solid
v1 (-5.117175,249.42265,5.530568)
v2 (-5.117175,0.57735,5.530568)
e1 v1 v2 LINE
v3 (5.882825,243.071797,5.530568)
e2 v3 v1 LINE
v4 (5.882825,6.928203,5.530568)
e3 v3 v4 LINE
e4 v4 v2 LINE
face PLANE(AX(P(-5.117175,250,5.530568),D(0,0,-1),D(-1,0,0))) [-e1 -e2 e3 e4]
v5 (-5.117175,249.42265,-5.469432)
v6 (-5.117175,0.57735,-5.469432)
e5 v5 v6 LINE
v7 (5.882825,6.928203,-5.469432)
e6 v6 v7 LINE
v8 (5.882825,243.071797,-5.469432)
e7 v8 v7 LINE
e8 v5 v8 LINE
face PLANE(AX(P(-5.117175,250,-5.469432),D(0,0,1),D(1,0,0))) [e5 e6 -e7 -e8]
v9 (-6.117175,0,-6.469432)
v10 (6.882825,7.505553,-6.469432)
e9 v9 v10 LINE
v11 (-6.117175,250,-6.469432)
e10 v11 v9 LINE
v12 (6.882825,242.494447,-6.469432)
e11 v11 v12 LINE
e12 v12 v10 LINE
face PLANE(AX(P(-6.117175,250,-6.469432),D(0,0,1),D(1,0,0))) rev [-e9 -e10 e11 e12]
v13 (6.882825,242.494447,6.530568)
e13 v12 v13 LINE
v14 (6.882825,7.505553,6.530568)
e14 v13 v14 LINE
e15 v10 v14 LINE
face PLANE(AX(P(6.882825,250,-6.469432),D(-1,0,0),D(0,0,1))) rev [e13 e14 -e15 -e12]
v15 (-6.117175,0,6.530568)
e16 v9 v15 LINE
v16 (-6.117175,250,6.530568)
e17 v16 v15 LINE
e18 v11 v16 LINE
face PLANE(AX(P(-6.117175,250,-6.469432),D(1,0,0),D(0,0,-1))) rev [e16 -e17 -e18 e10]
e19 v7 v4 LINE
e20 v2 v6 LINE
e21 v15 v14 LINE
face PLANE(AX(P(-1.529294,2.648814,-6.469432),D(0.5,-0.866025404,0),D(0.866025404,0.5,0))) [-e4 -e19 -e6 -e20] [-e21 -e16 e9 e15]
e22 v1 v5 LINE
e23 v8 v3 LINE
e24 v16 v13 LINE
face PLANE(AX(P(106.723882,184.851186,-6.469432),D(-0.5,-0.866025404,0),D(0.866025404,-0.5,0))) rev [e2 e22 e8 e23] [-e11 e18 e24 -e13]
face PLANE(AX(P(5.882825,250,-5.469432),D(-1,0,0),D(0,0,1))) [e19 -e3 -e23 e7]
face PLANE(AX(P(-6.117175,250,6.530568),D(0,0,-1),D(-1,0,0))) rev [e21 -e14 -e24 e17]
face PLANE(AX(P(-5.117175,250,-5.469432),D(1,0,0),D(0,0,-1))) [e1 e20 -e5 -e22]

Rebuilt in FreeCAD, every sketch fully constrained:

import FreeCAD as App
import Part
import Sketcher
from FreeCAD import Vector
Q = App.Units.Quantity


def add_polygon(sketch, points):
    """Adds a closed chain of lines whose ends are joined by coincident constraints."""
    first, n = sketch.GeometryCount, len(points)
    for a, b in zip(points, points[1:] + points[:1]):
        sketch.addGeometry(Part.LineSegment(App.Vector(*a, 0), App.Vector(*b, 0)), False)
    for i in range(n):
        sketch.addConstraint(Sketcher.Constraint("Coincident", first + i, 2, first + (i + 1) % n, 1))

doc = App.newDocument("Part")
params = doc.addObject("Spreadsheet::Sheet", "Params")
for row, (alias, value) in enumerate([
    ("sketch1_width", "13 mm"),
    ("sketch1_width2", "11 mm"),
    ("pad1_length", "250 mm"),
    ("sketch2_width", "13 mm"),
], start=1):
    params.set(f"A{row}", alias)
    params.set(f"B{row}", "=" + value)
    params.setAlias(f"B{row}", alias)

body = doc.addObject("PartDesign::Body", "Body")

sketch1 = body.newObject("Sketcher::SketchObject", "Sketch")
sketch1.AttachmentSupport = (doc.getObject("XZ_Plane"), [""])
sketch1.MapMode = "FlatFace"
add_polygon(sketch1, [(-6, -6), (-6, 7), (7, 7), (7, -6)])
add_polygon(sketch1, [(6, 6), (-5, 6), (-5, -5), (6, -5)])
sketch1.addConstraint(Sketcher.Constraint("Vertical", 0))
sketch1.addConstraint(Sketcher.Constraint("Horizontal", 1))
sketch1.addConstraint(Sketcher.Constraint("Vertical", 2))
sketch1.addConstraint(Sketcher.Constraint("Horizontal", 3))
sketch1.addConstraint(Sketcher.Constraint("Horizontal", 4))
sketch1.addConstraint(Sketcher.Constraint("Vertical", 5))
sketch1.addConstraint(Sketcher.Constraint("Horizontal", 6))
sketch1.addConstraint(Sketcher.Constraint("Vertical", 7))
sketch1.addConstraint(Sketcher.Constraint("Equal", 3, 0))
sketch1.addConstraint(Sketcher.Constraint("Equal", 6, 5))
sketch1.addConstraint(Sketcher.Constraint("DistanceX", 1, 1, 1, 2, 13.0))
sketch1.addConstraint(Sketcher.Constraint("DistanceX", 4, 2, 4, 1, 11.0))
sketch1.addConstraint(Sketcher.Constraint("DistanceX", 0, 2, 4, 2, 1.0))
sketch1.addConstraint(Sketcher.Constraint("DistanceY", 4, 2, 0, 2, 1.0))
sketch1.addConstraint(Sketcher.Constraint("DistanceX", 0, 2, -1, 1, 6.117175))
sketch1.addConstraint(Sketcher.Constraint("DistanceY", -1, 1, 0, 2, 6.530568))
sketch1.setExpression("Constraints[18]", "Params.sketch1_width")
sketch1.setExpression("Constraints[19]", "Params.sketch1_width2")
pad1 = body.newObject("PartDesign::Pad", "Pad")
pad1.Profile = sketch1
pad1.setExpression("Length", "Params.pad1_length")
pad1.Reversed = True

sketch2 = body.newObject("Sketcher::SketchObject", "Sketch001")
sketch2.AttachmentSupport = (doc.getObject("XY_Plane"), [""])
sketch2.MapMode = "FlatFace"
sketch2.AttachmentOffset = App.Placement(Vector(0, 0, 6.530568), App.Rotation())
add_polygon(sketch2, [(7, 0), (7, 8), (-6, 0)])
add_polygon(sketch2, [(7, 250), (-6, 250), (7, 242)])
sketch2.addConstraint(Sketcher.Constraint("Vertical", 0))
sketch2.addConstraint(Sketcher.Constraint("Horizontal", 2))
sketch2.addConstraint(Sketcher.Constraint("Horizontal", 3))
sketch2.addConstraint(Sketcher.Constraint("Vertical", 5))
sketch2.addConstraint(Sketcher.Constraint("PointOnObject", 1, 2, -1))
sketch2.addConstraint(Sketcher.Constraint("Vertical", 1, 2, 3, 2))
sketch2.addConstraint(Sketcher.Constraint("Vertical", 2, 2, 4, 2))
sketch2.addConstraint(Sketcher.Constraint("Equal", 0, 5))
sketch2.addConstraint(Sketcher.Constraint("DistanceX", 2, 1, 2, 2, 13.0))
sketch2.addConstraint(Sketcher.Constraint("Angle", 1, Q("-150 deg")))
sketch2.addConstraint(Sketcher.Constraint("DistanceY", -1, 1, 3, 2, 250.0))
sketch2.addConstraint(Sketcher.Constraint("DistanceX", -1, 1, 0, 2, 6.882825))
sketch2.setExpression("Constraints[14]", "Params.sketch2_width")
pocket1 = body.newObject("PartDesign::Pocket", "Pocket")
pocket1.Profile = sketch2
pocket1.Type = "ThroughAll"

doc.recompute()
